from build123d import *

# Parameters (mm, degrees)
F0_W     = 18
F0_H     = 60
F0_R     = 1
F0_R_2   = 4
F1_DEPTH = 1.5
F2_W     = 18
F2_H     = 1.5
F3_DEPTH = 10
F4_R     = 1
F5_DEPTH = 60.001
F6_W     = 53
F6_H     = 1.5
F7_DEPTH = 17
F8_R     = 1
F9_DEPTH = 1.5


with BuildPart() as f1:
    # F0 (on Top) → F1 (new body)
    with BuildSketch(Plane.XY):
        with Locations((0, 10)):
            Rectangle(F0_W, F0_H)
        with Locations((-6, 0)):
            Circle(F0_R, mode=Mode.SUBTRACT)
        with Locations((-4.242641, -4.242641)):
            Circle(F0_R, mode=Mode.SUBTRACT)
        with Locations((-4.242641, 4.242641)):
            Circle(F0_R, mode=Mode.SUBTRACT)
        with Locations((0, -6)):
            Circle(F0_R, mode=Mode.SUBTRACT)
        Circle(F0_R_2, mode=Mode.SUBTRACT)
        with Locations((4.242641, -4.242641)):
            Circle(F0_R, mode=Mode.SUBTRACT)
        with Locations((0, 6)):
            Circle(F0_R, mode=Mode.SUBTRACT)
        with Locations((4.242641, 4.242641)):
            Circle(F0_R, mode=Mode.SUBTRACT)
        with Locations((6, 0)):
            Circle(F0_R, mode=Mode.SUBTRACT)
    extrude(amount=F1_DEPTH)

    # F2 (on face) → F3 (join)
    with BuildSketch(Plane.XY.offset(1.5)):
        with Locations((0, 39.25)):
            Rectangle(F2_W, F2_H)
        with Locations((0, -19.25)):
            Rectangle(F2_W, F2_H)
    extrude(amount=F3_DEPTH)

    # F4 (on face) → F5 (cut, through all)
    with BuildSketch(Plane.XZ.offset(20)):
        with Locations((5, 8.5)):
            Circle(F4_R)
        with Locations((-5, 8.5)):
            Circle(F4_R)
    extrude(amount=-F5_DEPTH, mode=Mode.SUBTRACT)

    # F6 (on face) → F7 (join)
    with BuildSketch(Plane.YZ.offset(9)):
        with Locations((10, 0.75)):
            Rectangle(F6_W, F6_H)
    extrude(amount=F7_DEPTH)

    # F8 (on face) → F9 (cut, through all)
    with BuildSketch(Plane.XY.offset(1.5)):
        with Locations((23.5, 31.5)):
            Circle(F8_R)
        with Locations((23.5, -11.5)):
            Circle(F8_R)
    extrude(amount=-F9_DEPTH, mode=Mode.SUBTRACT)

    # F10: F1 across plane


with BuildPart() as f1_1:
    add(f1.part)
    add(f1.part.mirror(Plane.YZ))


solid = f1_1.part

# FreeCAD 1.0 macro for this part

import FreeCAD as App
import Part
import Sketcher
from FreeCAD import Vector

doc = App.newDocument("Part")
body = doc.addObject("PartDesign::Body", "Body")

# Sketch on XY plane
sketch1 = body.newObject("Sketcher::SketchObject", "Sketch")
sketch1.AttachmentSupport = (doc.getObject("XY_Plane"), [""])
sketch1.MapMode = "FlatFace"
sketch1.addGeometry([
    Part.LineSegment(Vector(-9, 40, 0), Vector(-9, -20, 0)),  # 0
    Part.LineSegment(Vector(-9, -20, 0), Vector(9, -20, 0)),  # 1
    Part.LineSegment(Vector(9, -20, 0), Vector(9, 40, 0)),  # 2
    Part.LineSegment(Vector(9, 40, 0), Vector(-9, 40, 0)),  # 3
    Part.Circle(Vector(-4.242641, -4.242641, 0), Vector(0, 0, 1), 1),  # 4
    Part.Circle(Vector(0, -6, 0), Vector(0, 0, 1), 1),  # 5
    Part.Circle(Vector(4.242641, -4.242641, 0), Vector(0, 0, 1), 1),  # 6
    Part.Circle(Vector(-6, 0, 0), Vector(0, 0, 1), 1),  # 7
    Part.Circle(Vector(-4.242641, 4.242641, 0), Vector(0, 0, 1), 1),  # 8
    Part.Circle(Vector(0, 0, 0), Vector(0, 0, 1), 4),  # 9
    Part.Circle(Vector(6, 0, 0), Vector(0, 0, 1), 1),  # 10
    Part.Circle(Vector(0, 6, 0), Vector(0, 0, 1), 1),  # 11
    Part.Circle(Vector(4.242641, 4.242641, 0), Vector(0, 0, 1), 1),  # 12
], False)
sketch1.addConstraint([
    Sketcher.Constraint("Coincident", 0, 2, 1, 1),
    Sketcher.Constraint("Coincident", 1, 2, 2, 1),
    Sketcher.Constraint("Coincident", 2, 2, 3, 1),
    Sketcher.Constraint("Coincident", 3, 2, 0, 1),
    Sketcher.Constraint("Vertical", 0),
    Sketcher.Constraint("Horizontal", 1),
    Sketcher.Constraint("Vertical", 2),
    Sketcher.Constraint("Horizontal", 3),
    Sketcher.Constraint("Coincident", 9, 3, -1, 1),
    Sketcher.Constraint("Equal", 4, 5),
    Sketcher.Constraint("Equal", 5, 6),
    Sketcher.Constraint("Equal", 6, 7),
    Sketcher.Constraint("Equal", 7, 8),
    Sketcher.Constraint("Equal", 8, 10),
    Sketcher.Constraint("Equal", 10, 11),
    Sketcher.Constraint("Equal", 11, 12),
    Sketcher.Constraint("Symmetric", 6, 3, 8, 3, -1, 1),
    Sketcher.Constraint("Symmetric", 7, 3, 10, 3, -1, 1),
    Sketcher.Constraint("Symmetric", 5, 3, 11, 3, -1, 1),
    Sketcher.Constraint("Symmetric", 4, 3, 12, 3, -1, 1),
    Sketcher.Constraint("Symmetric", 4, 3, 6, 3, -2),
    Sketcher.Constraint("PointOnObject", 5, 3, -2),
    Sketcher.Constraint("PointOnObject", 7, 3, -1),
    Sketcher.Constraint("Diameter", 4, 2.0),
    Sketcher.Constraint("Diameter", 9, 8.0),
    Sketcher.Constraint("DistanceX", 1, 1, 1, 2, 18.0),
    Sketcher.Constraint("DistanceY", 0, 2, 0, 1, 60.0),
    Sketcher.Constraint("DistanceY", 5, 3, -1, 1, 6.0),
    Sketcher.Constraint("DistanceX", 7, 3, -1, 1, 6.0),
    Sketcher.Constraint("DistanceX", 0, 2, -1, 1, 9.0),
    Sketcher.Constraint("DistanceY", 0, 2, -1, 1, 20.0),
    Sketcher.Constraint("DistanceX", 4, 3, -1, 1, 4.242641),
    Sketcher.Constraint("DistanceY", 4, 3, -1, 1, 4.242641),
])
pad1 = body.newObject("PartDesign::Pad", "Pad")
pad1.Profile = sketch1
pad1.Length = 1.5

# Sketch on XY plane
sketch2 = body.newObject("Sketcher::SketchObject", "Sketch001")
sketch2.AttachmentSupport = (doc.getObject("XY_Plane"), [""])
sketch2.MapMode = "FlatFace"
sketch2.AttachmentOffset = App.Placement(Vector(0, 0, 1.5), App.Rotation())
sketch2.addGeometry([
    Part.LineSegment(Vector(-9, 40, 0), Vector(-9, 38.5, 0)),  # 0
    Part.LineSegment(Vector(-9, 38.5, 0), Vector(9, 38.5, 0)),  # 1
    Part.LineSegment(Vector(9, 38.5, 0), Vector(9, 40, 0)),  # 2
    Part.LineSegment(Vector(9, 40, 0), Vector(-9, 40, 0)),  # 3
    Part.LineSegment(Vector(-9, -18.5, 0), Vector(-9, -20, 0)),  # 4
    Part.LineSegment(Vector(-9, -20, 0), Vector(9, -20, 0)),  # 5
    Part.LineSegment(Vector(9, -20, 0), Vector(9, -18.5, 0)),  # 6
    Part.LineSegment(Vector(9, -18.5, 0), Vector(-9, -18.5, 0)),  # 7
], False)
sketch2.addConstraint([
    Sketcher.Constraint("Coincident", 0, 2, 1, 1),
    Sketcher.Constraint("Coincident", 1, 2, 2, 1),
    Sketcher.Constraint("Coincident", 2, 2, 3, 1),
    Sketcher.Constraint("Coincident", 3, 2, 0, 1),
    Sketcher.Constraint("Coincident", 4, 2, 5, 1),
    Sketcher.Constraint("Coincident", 5, 2, 6, 1),
    Sketcher.Constraint("Coincident", 6, 2, 7, 1),
    Sketcher.Constraint("Coincident", 7, 2, 4, 1),
    Sketcher.Constraint("Vertical", 0),
    Sketcher.Constraint("Horizontal", 1),
    Sketcher.Constraint("Vertical", 2),
    Sketcher.Constraint("Horizontal", 3),
    Sketcher.Constraint("Vertical", 4),
    Sketcher.Constraint("Horizontal", 5),
    Sketcher.Constraint("Vertical", 6),
    Sketcher.Constraint("Horizontal", 7),
    Sketcher.Constraint("Vertical", 3, 2, 4, 2),
    Sketcher.Constraint("Vertical", 2, 2, 5, 2),
    Sketcher.Constraint("Equal", 2, 4),
    Sketcher.Constraint("DistanceX", 1, 1, 1, 2, 18.0),
    Sketcher.Constraint("DistanceY", 0, 2, 0, 1, 1.5),
    Sketcher.Constraint("DistanceX", 0, 2, -1, 1, 9.0),
    Sketcher.Constraint("DistanceY", -1, 1, 2, 2, 40.0),
    Sketcher.Constraint("DistanceY", 4, 2, -1, 1, 20.0),
])
pad2 = body.newObject("PartDesign::Pad", "Pad001")
pad2.Profile = sketch2
pad2.Length = 10

# Sketch on XZ plane
sketch3 = body.newObject("Sketcher::SketchObject", "Sketch002")
sketch3.AttachmentSupport = (doc.getObject("XZ_Plane"), [""])
sketch3.MapMode = "FlatFace"
sketch3.AttachmentOffset = App.Placement(Vector(0, 0, 20), App.Rotation())
sketch3.addGeometry([
    Part.Circle(Vector(5, 8.5, 0), Vector(0, 0, 1), 1),
    Part.Circle(Vector(-5, 8.5, 0), Vector(0, 0, 1), 1),
], False)
sketch3.addConstraint([
    Sketcher.Constraint("Equal", 0, 1),
    Sketcher.Constraint("Symmetric", 0, 3, 1, 3, -2),
    Sketcher.Constraint("Diameter", 0, 2.0),
    Sketcher.Constraint("DistanceX", -1, 1, 0, 3, 5.0),
    Sketcher.Constraint("DistanceY", -1, 1, 0, 3, 8.5),
])
pocket1 = body.newObject("PartDesign::Pocket", "Pocket")
pocket1.Profile = sketch3
pocket1.Type = "ThroughAll"

# Sketch on YZ plane
sketch4 = body.newObject("Sketcher::SketchObject", "Sketch003")
sketch4.AttachmentSupport = (doc.getObject("YZ_Plane"), [""])
sketch4.MapMode = "FlatFace"
sketch4.AttachmentOffset = App.Placement(Vector(0, 0, 9), App.Rotation())
sketch4.addGeometry([
    Part.LineSegment(Vector(-16.5, 1.5, 0), Vector(-16.5, 0, 0)),
    Part.LineSegment(Vector(-16.5, 0, 0), Vector(36.5, 0, 0)),
    Part.LineSegment(Vector(36.5, 0, 0), Vector(36.5, 1.5, 0)),
    Part.LineSegment(Vector(36.5, 1.5, 0), Vector(-16.5, 1.5, 0)),
], False)
sketch4.addConstraint([
    Sketcher.Constraint("Coincident", 0, 2, 1, 1),
    Sketcher.Constraint("Coincident", 1, 2, 2, 1),
    Sketcher.Constraint("Coincident", 2, 2, 3, 1),
    Sketcher.Constraint("Coincident", 3, 2, 0, 1),
    Sketcher.Constraint("Vertical", 0),
    Sketcher.Constraint("Horizontal", 1),
    Sketcher.Constraint("Vertical", 2),
    Sketcher.Constraint("Horizontal", 3),
    Sketcher.Constraint("PointOnObject", 0, 2, -1),
    Sketcher.Constraint("DistanceX", 1, 1, 1, 2, 53.0),
    Sketcher.Constraint("DistanceY", 0, 2, 0, 1, 1.5),
    Sketcher.Constraint("DistanceX", 0, 2, -1, 1, 16.5),
])
pad3 = body.newObject("PartDesign::Pad", "Pad002")
pad3.Profile = sketch4
pad3.Length = 17

# Sketch on XY plane
sketch5 = body.newObject("Sketcher::SketchObject", "Sketch004")
sketch5.AttachmentSupport = (doc.getObject("XY_Plane"), [""])
sketch5.MapMode = "FlatFace"
sketch5.AttachmentOffset = App.Placement(Vector(0, 0, 1.5), App.Rotation())
sketch5.addGeometry([
    Part.Circle(Vector(23.5, 31.5, 0), Vector(0, 0, 1), 1),
    Part.Circle(Vector(23.5, -11.5, 0), Vector(0, 0, 1), 1),
], False)
sketch5.addConstraint([
    Sketcher.Constraint("Equal", 0, 1),
    Sketcher.Constraint("Vertical", 0, 3, 1, 3),
    Sketcher.Constraint("Diameter", 0, 2.0),
    Sketcher.Constraint("DistanceY", 1, 3, 0, 3, 43.0),
    Sketcher.Constraint("DistanceX", -1, 1, 0, 3, 23.5),
    Sketcher.Constraint("DistanceY", -1, 1, 0, 3, 31.5),
])
pocket2 = body.newObject("PartDesign::Pocket", "Pocket001")
pocket2.Profile = sketch5
pocket2.Type = "ThroughAll"
body2 = doc.addObject("PartDesign::Body", "Body001")
doc.recompute()

body2.BaseFeature = body
doc.recompute()

mirroring = doc.addObject("Part::Mirroring", "Mirroring")
mirroring.Source = body
mirroring.Base = Vector(0, 0, 0)
mirroring.Normal = Vector(1, 0, 0)
body3 = doc.addObject("PartDesign::Body", "Body002")
body3.BaseFeature = mirroring
boolean = body2.newObject("PartDesign::Boolean", "Boolean")
boolean.Type = "Fuse"
boolean.addObjects([body3])
doc.recompute()
mirroring.Visibility = False

doc.recompute()
